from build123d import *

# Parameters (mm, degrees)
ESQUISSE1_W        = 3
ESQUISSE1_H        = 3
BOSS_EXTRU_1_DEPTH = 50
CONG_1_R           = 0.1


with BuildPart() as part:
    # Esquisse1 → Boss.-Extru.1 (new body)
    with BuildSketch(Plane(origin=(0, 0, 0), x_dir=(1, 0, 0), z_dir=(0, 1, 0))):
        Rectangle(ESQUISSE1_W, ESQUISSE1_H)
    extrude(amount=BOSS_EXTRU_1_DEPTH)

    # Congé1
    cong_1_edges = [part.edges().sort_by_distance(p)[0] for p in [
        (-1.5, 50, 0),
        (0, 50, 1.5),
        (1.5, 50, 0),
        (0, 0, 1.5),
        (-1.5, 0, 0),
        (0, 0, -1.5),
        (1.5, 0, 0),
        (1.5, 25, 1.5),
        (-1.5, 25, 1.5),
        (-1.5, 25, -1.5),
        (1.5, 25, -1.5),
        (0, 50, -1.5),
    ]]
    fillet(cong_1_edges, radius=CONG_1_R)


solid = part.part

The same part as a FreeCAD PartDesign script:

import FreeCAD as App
import Part
import Sketcher
from FreeCAD import Vector

doc = App.newDocument("Part")
params = doc.addObject("Spreadsheet::Sheet", "Params")
for row, (alias, value) in enumerate([
    ("sketch1_width", "3 mm"),
    ("pad1_length", "50 mm"),
    ("fillet_radius", "0.1 mm"),
], start=1):
    params.set(f"A{row}", alias)
    params.set(f"B{row}", "=" + value)
    params.setAlias(f"B{row}", alias)

body = doc.addObject("PartDesign::Body", "Body")

sketch1 = body.newObject("Sketcher::SketchObject", "Sketch")
sketch1.AttachmentSupport = (doc.getObject("XZ_Plane"), [""])
sketch1.MapMode = "FlatFace"
sketch1.addGeometry(Part.LineSegment(Vector(-1.5, -1.5, 0), Vector(-1.5, 1.5, 0)), False)
sketch1.addGeometry(Part.LineSegment(Vector(-1.5, 1.5, 0), Vector(1.5, 1.5, 0)), False)
sketch1.addGeometry(Part.LineSegment(Vector(1.5, 1.5, 0), Vector(1.5, -1.5, 0)), False)
sketch1.addGeometry(Part.LineSegment(Vector(1.5, -1.5, 0), Vector(-1.5, -1.5, 0)), False)
sketch1.addConstraint(Sketcher.Constraint("Coincident", 0, 2, 1, 1))
sketch1.addConstraint(Sketcher.Constraint("Coincident", 1, 2, 2, 1))
sketch1.addConstraint(Sketcher.Constraint("Coincident", 2, 2, 3, 1))
sketch1.addConstraint(Sketcher.Constraint("Coincident", 3, 2, 0, 1))
sketch1.addConstraint(Sketcher.Constraint("Vertical", 0))
sketch1.addConstraint(Sketcher.Constraint("Horizontal", 1))
sketch1.addConstraint(Sketcher.Constraint("Vertical", 2))
sketch1.addConstraint(Sketcher.Constraint("Horizontal", 3))
sketch1.addConstraint(Sketcher.Constraint("Symmetric", 0, 2, 2, 2, -1, 1))
sketch1.addConstraint(Sketcher.Constraint("Equal", 3, 0))
sketch1.addConstraint(Sketcher.Constraint("DistanceX", 1, 1, 1, 2, 3.0))
sketch1.setExpression("Constraints[10]", "Params.sketch1_width")
pad1 = body.newObject("PartDesign::Pad", "Pad")
pad1.Profile = sketch1
pad1.setExpression("Length", "Params.pad1_length")
pad1.Reversed = True
doc.recompute()

fillet = body.newObject("PartDesign::Fillet", "Fillet")
fillet.Base = (pad1, ["Edge1"])
fillet.UseAllEdges = True
fillet.setExpression("Radius", "Params.fillet_radius")

doc.recompute()
